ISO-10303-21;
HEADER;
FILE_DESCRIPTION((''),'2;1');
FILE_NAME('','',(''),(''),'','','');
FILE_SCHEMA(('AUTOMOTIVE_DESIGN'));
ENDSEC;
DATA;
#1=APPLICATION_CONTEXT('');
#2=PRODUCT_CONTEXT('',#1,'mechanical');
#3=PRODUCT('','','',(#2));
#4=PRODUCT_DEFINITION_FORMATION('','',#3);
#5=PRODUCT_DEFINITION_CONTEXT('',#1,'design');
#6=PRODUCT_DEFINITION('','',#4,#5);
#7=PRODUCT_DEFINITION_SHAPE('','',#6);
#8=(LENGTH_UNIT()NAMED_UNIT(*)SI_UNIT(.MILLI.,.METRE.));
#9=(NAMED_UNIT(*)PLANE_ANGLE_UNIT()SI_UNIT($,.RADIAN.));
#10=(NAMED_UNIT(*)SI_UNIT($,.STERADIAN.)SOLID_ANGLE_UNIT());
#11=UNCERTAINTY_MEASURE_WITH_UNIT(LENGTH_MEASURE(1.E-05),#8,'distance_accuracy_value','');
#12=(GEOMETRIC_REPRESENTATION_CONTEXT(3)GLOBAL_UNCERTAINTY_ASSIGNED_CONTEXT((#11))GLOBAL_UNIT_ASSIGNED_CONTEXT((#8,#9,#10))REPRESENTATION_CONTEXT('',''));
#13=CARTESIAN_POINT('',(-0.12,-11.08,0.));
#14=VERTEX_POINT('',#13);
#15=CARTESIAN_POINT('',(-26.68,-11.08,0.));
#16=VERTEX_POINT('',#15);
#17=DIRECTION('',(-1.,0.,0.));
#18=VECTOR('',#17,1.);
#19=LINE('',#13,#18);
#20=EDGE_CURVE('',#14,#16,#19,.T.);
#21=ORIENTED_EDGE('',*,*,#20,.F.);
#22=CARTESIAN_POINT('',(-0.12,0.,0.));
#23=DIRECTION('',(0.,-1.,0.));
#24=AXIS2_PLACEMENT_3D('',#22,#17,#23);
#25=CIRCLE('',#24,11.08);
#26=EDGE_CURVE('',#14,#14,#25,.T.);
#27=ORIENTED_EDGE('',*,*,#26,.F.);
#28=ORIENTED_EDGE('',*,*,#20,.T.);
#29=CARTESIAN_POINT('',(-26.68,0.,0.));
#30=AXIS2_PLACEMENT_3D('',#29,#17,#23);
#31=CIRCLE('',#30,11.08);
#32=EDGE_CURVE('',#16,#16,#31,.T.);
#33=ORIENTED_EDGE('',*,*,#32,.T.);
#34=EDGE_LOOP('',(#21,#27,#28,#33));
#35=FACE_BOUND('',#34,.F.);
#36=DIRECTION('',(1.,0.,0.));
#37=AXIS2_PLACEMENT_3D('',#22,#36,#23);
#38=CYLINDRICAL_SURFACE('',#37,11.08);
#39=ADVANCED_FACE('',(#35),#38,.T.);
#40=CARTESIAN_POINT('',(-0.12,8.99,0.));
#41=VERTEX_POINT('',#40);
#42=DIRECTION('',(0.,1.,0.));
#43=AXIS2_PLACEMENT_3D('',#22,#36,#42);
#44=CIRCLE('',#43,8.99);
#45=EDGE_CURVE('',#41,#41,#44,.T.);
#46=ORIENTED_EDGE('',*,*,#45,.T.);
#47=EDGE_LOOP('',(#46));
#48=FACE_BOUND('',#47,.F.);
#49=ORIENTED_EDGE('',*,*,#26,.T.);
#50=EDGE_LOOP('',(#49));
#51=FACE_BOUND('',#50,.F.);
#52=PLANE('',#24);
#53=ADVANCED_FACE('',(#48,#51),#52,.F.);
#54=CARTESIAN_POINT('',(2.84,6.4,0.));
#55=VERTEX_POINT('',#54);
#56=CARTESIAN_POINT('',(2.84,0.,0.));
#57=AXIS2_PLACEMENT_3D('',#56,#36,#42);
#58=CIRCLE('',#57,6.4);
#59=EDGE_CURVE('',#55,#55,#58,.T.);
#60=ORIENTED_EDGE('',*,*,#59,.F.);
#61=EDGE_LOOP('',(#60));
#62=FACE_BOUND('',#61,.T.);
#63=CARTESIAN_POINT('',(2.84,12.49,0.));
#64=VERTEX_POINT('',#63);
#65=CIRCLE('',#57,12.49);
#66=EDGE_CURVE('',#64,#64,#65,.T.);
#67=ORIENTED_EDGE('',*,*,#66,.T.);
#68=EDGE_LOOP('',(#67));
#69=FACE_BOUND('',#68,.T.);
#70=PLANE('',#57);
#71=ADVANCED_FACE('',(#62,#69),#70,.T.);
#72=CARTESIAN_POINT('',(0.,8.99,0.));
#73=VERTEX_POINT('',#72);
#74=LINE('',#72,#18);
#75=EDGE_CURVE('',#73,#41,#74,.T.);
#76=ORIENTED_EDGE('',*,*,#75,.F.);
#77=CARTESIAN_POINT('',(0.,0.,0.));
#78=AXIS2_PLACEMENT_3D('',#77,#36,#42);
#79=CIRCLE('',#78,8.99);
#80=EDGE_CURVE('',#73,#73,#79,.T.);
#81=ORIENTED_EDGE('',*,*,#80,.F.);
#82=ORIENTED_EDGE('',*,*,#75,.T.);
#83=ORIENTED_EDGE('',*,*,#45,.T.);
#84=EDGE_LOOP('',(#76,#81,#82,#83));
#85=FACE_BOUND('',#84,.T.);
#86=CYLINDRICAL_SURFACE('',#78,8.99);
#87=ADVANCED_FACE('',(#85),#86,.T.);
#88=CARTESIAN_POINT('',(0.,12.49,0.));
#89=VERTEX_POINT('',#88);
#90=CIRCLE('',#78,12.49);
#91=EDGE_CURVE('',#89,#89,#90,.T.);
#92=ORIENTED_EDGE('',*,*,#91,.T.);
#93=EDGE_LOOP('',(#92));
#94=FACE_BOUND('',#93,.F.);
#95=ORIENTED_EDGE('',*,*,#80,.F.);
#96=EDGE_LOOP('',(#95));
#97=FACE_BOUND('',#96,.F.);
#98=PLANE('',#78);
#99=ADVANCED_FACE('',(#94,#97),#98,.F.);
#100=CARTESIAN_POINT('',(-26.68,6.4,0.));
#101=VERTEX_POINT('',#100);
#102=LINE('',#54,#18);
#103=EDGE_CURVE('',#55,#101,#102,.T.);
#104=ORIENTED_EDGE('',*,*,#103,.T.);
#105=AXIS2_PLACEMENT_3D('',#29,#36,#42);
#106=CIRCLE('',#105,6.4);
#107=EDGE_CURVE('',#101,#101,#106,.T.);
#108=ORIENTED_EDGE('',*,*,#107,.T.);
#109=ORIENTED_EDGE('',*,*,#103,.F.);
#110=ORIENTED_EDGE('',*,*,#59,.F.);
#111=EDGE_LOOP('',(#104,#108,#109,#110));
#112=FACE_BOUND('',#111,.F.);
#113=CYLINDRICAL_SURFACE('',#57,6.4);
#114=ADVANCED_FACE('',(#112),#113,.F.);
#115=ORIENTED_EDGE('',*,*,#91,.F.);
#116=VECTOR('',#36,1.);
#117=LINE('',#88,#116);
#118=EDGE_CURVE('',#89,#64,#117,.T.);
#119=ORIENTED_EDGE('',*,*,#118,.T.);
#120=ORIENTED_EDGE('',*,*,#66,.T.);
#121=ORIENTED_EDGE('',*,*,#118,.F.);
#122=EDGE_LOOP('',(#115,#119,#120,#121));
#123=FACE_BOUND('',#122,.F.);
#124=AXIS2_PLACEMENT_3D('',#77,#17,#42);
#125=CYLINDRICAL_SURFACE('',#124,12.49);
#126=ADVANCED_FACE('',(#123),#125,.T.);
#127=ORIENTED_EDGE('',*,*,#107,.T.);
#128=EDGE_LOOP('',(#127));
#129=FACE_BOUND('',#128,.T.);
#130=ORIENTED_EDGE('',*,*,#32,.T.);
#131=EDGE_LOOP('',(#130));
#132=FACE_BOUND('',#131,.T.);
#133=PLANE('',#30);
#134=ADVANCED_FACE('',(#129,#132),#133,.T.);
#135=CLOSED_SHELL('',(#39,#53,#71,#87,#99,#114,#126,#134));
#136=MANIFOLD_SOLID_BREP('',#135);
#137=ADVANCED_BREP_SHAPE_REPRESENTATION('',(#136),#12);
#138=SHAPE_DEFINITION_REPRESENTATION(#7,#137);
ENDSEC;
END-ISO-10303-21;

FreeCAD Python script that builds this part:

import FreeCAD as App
import Part
import Sketcher

V = App.Vector
Q = App.Units.Quantity

doc = App.newDocument("Part")
params = doc.addObject("Spreadsheet::Sheet", "Params")
for row, (alias, value) in enumerate([
    ("sketch1_diameter", "24.98 mm"),
    ("pad1_length", "2.84 mm"),
    ("sketch2_diameter", "17.98 mm"),
    ("pad2_length", "0.12 mm"),
    ("sketch3_diameter", "22.16 mm"),
    ("pad3_length", "26.56 mm"),
    ("sketch4_diameter", "12.8 mm"),
    ("pocket1_length", "29.56 mm"),
], start=1):
    params.set(f"A{row}", alias)
    params.set(f"B{row}", "=" + value)
    params.setAlias(f"B{row}", alias)

body = doc.addObject("PartDesign::Body", "Body")

# Sketch on YZ plane
sketch1 = body.newObject("Sketcher::SketchObject", "Sketch")
sketch1.AttachmentSupport = (doc.getObject("YZ_Plane"), [""])
sketch1.MapMode = "FlatFace"
sketch1.addGeometry(Part.Circle(V(0, 0, 0), V(0, 0, 1), 12), False)
sketch1.addConstraint([
    Sketcher.Constraint("Coincident", 0, 3, -1, 1),
    Sketcher.Constraint("Diameter", 0, Q("24.98 mm")),
])
sketch1.setExpression("Constraints[1]", "Params.sketch1_diameter")
pad1 = body.newObject("PartDesign::Pad", "Pad")
pad1.Profile = sketch1
pad1.setExpression("Length", "Params.pad1_length")

# Sketch on YZ plane
sketch2 = body.newObject("Sketcher::SketchObject", "Sketch001")
sketch2.AttachmentSupport = (doc.getObject("YZ_Plane"), [""])
sketch2.MapMode = "FlatFace"
sketch2.addGeometry(Part.Circle(V(0, 0, 0), V(0, 0, 1), 9), False)
sketch2.addConstraint([
    Sketcher.Constraint("Coincident", 0, 3, -1, 1),
    Sketcher.Constraint("Diameter", 0, Q("17.98 mm")),
])
sketch2.setExpression("Constraints[1]", "Params.sketch2_diameter")
pad2 = body.newObject("PartDesign::Pad", "Pad001")
pad2.Profile = sketch2
pad2.setExpression("Length", "Params.pad2_length")
pad2.Reversed = True

# Sketch on YZ plane
sketch3 = body.newObject("Sketcher::SketchObject", "Sketch002")
sketch3.AttachmentSupport = (doc.getObject("YZ_Plane"), [""])
sketch3.MapMode = "FlatFace"
sketch3.AttachmentOffset = App.Placement(V(0, 0, -0.12), App.Rotation())
sketch3.addGeometry(Part.Circle(V(0, 0, 0), V(0, 0, 1), 11), False)
sketch3.addConstraint([
    Sketcher.Constraint("Coincident", 0, 3, -1, 1),
    Sketcher.Constraint("Diameter", 0, Q("22.16 mm")),
])
sketch3.setExpression("Constraints[1]", "Params.sketch3_diameter")
pad3 = body.newObject("PartDesign::Pad", "Pad002")
pad3.Profile = sketch3
pad3.setExpression("Length", "Params.pad3_length")
pad3.Reversed = True

# Sketch on YZ plane
sketch4 = body.newObject("Sketcher::SketchObject", "Sketch003")
sketch4.AttachmentSupport = (doc.getObject("YZ_Plane"), [""])
sketch4.MapMode = "FlatFace"
sketch4.AttachmentOffset = App.Placement(V(0, 0, 2.84), App.Rotation())
sketch4.addGeometry(Part.Circle(V(0, 0, 0), V(0, 0, 1), 6), False)
sketch4.addConstraint([
    Sketcher.Constraint("Coincident", 0, 3, -1, 1),
    Sketcher.Constraint("Diameter", 0, Q("12.8 mm")),
])
sketch4.setExpression("Constraints[1]", "Params.sketch4_diameter")
pocket1 = body.newObject("PartDesign::Pocket", "Pocket")
pocket1.Profile = sketch4
pocket1.setExpression("Length", "Params.pocket1_length")

doc.recompute()
